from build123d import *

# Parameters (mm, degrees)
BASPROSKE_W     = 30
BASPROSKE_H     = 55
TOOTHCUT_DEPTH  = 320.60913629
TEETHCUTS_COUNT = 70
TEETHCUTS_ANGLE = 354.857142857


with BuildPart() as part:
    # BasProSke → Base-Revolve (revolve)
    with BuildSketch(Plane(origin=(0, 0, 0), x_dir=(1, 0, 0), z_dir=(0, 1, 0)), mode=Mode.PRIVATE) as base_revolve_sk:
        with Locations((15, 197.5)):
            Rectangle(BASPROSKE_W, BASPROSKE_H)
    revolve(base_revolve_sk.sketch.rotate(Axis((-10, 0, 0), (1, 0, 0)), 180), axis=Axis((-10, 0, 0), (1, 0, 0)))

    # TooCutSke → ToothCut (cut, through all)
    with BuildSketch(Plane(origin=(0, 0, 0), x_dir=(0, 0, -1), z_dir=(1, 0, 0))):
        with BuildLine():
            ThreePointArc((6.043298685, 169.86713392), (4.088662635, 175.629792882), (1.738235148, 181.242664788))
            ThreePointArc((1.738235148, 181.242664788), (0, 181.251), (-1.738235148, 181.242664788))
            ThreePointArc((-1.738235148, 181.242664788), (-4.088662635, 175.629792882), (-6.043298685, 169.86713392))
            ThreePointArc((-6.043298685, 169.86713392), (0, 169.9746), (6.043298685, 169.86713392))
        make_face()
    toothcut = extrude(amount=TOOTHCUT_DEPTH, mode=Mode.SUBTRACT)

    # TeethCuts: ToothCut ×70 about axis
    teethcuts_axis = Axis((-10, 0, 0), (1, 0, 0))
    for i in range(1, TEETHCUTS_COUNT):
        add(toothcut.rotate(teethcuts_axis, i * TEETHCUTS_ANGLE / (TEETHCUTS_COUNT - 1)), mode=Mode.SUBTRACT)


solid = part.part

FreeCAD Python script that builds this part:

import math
import FreeCAD as App
import Part
import Sketcher
from FreeCAD import Vector
Q = App.Units.Quantity


def add_polygon(sketch, points):
    """Adds a closed chain of lines whose ends are joined by coincident constraints."""
    first, n = sketch.GeometryCount, len(points)
    for a, b in zip(points, points[1:] + points[:1]):
        sketch.addGeometry(Part.LineSegment(App.Vector(*a, 0), App.Vector(*b, 0)), False)
    for i in range(n):
        sketch.addConstraint(Sketcher.Constraint("Coincident", first + i, 2, first + (i + 1) % n, 1))

doc = App.newDocument("Part")
body = doc.addObject("PartDesign::Body", "Body")

# Sketch on XZ plane
sketch1 = doc.addObject("Sketcher::SketchObject", "Sketch")
body.addObject(sketch1)
sketch1.AttachmentSupport = (doc.XZ_Plane, [""])
sketch1.MapMode = "FlatFace"
add_polygon(sketch1, [(0, -225), (0, -170), (30, -170), (30, -225)])  # lines 0-3
sketch1.addConstraint([
    Sketcher.Constraint("Vertical", 0),
    Sketcher.Constraint("Horizontal", 1),
    Sketcher.Constraint("Vertical", 2),
    Sketcher.Constraint("Horizontal", 3),
    Sketcher.Constraint("PointOnObject", 0, 2, -2),
    Sketcher.Constraint("DistanceX", 1, 1, 1, 2, Q("30 mm")),
    Sketcher.Constraint("DistanceY", 0, 1, 0, 2, Q("55 mm")),
    Sketcher.Constraint("DistanceY", 0, 2, -1, 1, Q("170 mm")),
])
revolution = doc.addObject("PartDesign::Revolution", "Revolution")
body.addObject(revolution)
revolution.Profile = sketch1
revolution.ReferenceAxis = (sketch1, ["H_Axis"])
revolution.Angle = 360

# Sketch on YZ plane
sketch2 = doc.addObject("Sketcher::SketchObject", "Sketch001")
body.addObject(sketch2)
sketch2.AttachmentSupport = (doc.YZ_Plane, [""])
sketch2.MapMode = "FlatFace"
sketch2.addGeometry([
    Part.ArcOfCircle(Part.Circle(Vector(144.7, 77.7, 0), Vector(0, 0, 1), 87.5), math.radians(-73.26), math.radians(-65.29)),
    Part.ArcOfCircle(Part.Circle(Vector(0, 0, 0), Vector(0, 0, 1), 181.3), math.radians(-0.55), math.radians(0.55)),
    Part.ArcOfCircle(Part.Circle(Vector(144.7, -77.7, 0), Vector(0, 0, 1), 87.5), math.radians(65.29), math.radians(73.26)),
    Part.ArcOfCircle(Part.Circle(Vector(0, 0, 0), Vector(0, 0, 1), 170), math.radians(-2.04), math.radians(2.04)),
], False)
sketch2.addConstraint([
    Sketcher.Constraint("Coincident", 0, 2, 1, 1),
    Sketcher.Constraint("Coincident", 1, 2, 2, 1),
    Sketcher.Constraint("Coincident", 2, 2, 3, 2),
    Sketcher.Constraint("Coincident", 3, 1, 0, 1),
    Sketcher.Constraint("Coincident", 1, 3, -1, 1),
    Sketcher.Constraint("Coincident", 3, 3, -1, 1),
    Sketcher.Constraint("Equal", 0, 2),
    Sketcher.Constraint("Symmetric", 0, 3, 2, 3, -1),
    Sketcher.Constraint("Radius", 0, Q("87.5 mm")),
    Sketcher.Constraint("Radius", 3, Q("169.9746 mm")),
    Sketcher.Constraint("Radius", 1, Q("181.250993 mm")),
    Sketcher.Constraint("DistanceY", -1, 1, 2, 2, Q("6.043299 mm")),
    Sketcher.Constraint("DistanceY", -1, 1, 0, 3, Q("77.746959 mm")),
])
pocket1 = doc.addObject("PartDesign::Pocket", "Pocket")
body.addObject(pocket1)
pocket1.Profile = sketch2
pocket1.Type = "ThroughAll"
pocket1.Reversed = True
doc.recompute()

polarpattern = doc.addObject("PartDesign::PolarPattern", "PolarPattern")
body.addObject(polarpattern)
polarpattern.Originals = [pocket1]
polarpattern.Axis = (doc.X_Axis, [""])
polarpattern.Angle = 360
polarpattern.Occurrences = 70
body.Tip = polarpattern

doc.recompute()
